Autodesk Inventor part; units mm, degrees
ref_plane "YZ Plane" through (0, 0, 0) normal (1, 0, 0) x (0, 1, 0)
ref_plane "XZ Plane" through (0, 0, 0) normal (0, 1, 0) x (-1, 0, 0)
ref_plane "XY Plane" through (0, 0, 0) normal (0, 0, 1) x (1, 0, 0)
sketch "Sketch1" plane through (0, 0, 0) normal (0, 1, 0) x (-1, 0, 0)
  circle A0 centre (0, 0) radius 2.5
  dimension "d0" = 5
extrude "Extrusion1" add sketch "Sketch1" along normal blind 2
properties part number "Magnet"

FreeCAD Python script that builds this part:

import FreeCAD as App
import Part
import Sketcher
Q = App.Units.Quantity

doc = App.newDocument("Part")
body = doc.addObject("PartDesign::Body", "Body")

# Sketch on XZ plane
sketch1 = body.newObject("Sketcher::SketchObject", "Sketch")
sketch1.AttachmentSupport = (doc.getObject("XZ_Plane"), [""])
sketch1.MapMode = "FlatFace"
sketch1.addGeometry(Part.Circle(App.Vector(0, 0, 0), App.Vector(0, 0, 1), 2.5), False)
sketch1.addConstraint([
    Sketcher.Constraint("Coincident", 0, 3, -1, 1),
    Sketcher.Constraint("Diameter", 0, Q("5 mm")),
])
pad1 = body.newObject("PartDesign::Pad", "Pad")
pad1.Profile = sketch1
pad1.Length = 2
pad1.Reversed = True

doc.recompute()
